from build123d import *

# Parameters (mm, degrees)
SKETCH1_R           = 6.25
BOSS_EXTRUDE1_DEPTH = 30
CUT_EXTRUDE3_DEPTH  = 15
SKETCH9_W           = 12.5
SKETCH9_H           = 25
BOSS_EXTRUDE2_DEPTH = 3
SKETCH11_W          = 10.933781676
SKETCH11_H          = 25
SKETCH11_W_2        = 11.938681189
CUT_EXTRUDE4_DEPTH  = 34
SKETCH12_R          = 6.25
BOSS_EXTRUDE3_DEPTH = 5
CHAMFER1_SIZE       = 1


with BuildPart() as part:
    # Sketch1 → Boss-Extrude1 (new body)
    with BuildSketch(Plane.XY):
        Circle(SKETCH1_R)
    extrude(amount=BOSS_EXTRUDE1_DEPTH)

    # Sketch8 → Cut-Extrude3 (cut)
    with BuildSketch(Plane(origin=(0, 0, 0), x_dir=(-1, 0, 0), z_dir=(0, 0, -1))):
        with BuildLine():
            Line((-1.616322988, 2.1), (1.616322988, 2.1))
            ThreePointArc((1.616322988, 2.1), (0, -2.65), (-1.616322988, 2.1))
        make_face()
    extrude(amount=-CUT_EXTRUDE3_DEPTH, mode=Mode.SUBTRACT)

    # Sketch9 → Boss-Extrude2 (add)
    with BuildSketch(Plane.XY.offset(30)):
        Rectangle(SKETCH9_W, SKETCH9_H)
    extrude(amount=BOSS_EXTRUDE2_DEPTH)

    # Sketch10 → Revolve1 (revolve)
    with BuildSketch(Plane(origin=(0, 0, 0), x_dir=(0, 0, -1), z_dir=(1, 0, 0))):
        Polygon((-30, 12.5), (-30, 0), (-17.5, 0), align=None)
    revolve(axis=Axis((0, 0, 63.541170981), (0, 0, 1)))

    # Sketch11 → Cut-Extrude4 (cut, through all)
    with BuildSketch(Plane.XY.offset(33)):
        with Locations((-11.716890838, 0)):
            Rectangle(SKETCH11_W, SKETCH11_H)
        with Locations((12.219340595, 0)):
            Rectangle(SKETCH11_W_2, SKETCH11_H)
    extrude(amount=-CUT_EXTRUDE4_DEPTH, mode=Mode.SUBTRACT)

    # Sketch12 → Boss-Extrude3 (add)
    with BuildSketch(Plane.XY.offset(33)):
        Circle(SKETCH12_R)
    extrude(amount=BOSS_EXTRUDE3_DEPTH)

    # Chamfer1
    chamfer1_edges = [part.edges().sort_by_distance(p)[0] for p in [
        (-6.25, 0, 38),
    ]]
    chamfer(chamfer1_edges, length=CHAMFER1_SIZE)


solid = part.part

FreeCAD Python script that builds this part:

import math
import FreeCAD as App
import Part
import Sketcher

V = App.Vector
Q = App.Units.Quantity


def edges_at(feature, points):
    """Names of the edges that pass closest to the given points."""
    edges = feature.Shape.Edges
    near = lambda p: min(range(len(edges)), key=lambda i: edges[i].distToShape(Part.Vertex(*p))[0])
    return sorted({f"Edge{near(p) + 1}" for p in points})


def add_polygon(sketch, points):
    """Adds a closed chain of lines whose ends are joined by coincident constraints."""
    first, n = sketch.GeometryCount, len(points)
    for a, b in zip(points, points[1:] + points[:1]):
        sketch.addGeometry(Part.LineSegment(App.Vector(*a, 0), App.Vector(*b, 0)), False)
    for i in range(n):
        sketch.addConstraint(Sketcher.Constraint("Coincident", first + i, 2, first + (i + 1) % n, 1))

doc = App.newDocument("Part")
body = doc.addObject("PartDesign::Body", "Body")

sketch1 = body.newObject("Sketcher::SketchObject", "Sketch")
sketch1.AttachmentSupport = (doc.getObject("XY_Plane"), [""])
sketch1.MapMode = "FlatFace"
sketch1.addGeometry(Part.Circle(V(0, 0, 0), V(0, 0, 1), 6), False)
sketch1.addConstraint(Sketcher.Constraint("Coincident", 0, 3, -1, 1))
sketch1.addConstraint(Sketcher.Constraint("Diameter", 0, Q("12.5 mm")))
pad1 = body.newObject("PartDesign::Pad", "Pad")
pad1.Profile = sketch1
pad1.Length = 30

sketch2 = body.newObject("Sketcher::SketchObject", "Sketch001")
sketch2.AttachmentSupport = (doc.getObject("XY_Plane"), [""])
sketch2.MapMode = "FlatFace"
sketch2.addGeometry(Part.LineSegment(V(-1.6, 2.1, 0), V(1.6, 2.1, 0)), False)
sketch2.addGeometry(Part.ArcOfCircle(Part.Circle(V(0, 0, 0), V(0, 0, 1), 2.6), math.radians(128), math.radians(412)), False)
sketch2.addConstraint(Sketcher.Constraint("Coincident", 0, 1, 1, 1))
sketch2.addConstraint(Sketcher.Constraint("Coincident", 1, 2, 0, 2))
sketch2.addConstraint(Sketcher.Constraint("Horizontal", 0))
sketch2.addConstraint(Sketcher.Constraint("Coincident", 1, 3, -1, 1))
sketch2.addConstraint(Sketcher.Constraint("Radius", 1, Q("2.65 mm")))
sketch2.addConstraint(Sketcher.Constraint("DistanceY", -1, 1, 0, 1, Q("2.1 mm")))
pocket1 = body.newObject("PartDesign::Pocket", "Pocket")
pocket1.Profile = sketch2
pocket1.Length = 15
pocket1.Reversed = True

sketch3 = body.newObject("Sketcher::SketchObject", "Sketch002")
sketch3.AttachmentSupport = (doc.getObject("XY_Plane"), [""])
sketch3.MapMode = "FlatFace"
sketch3.AttachmentOffset = App.Placement(V(0, 0, 30), App.Rotation())
add_polygon(sketch3, [(-6, 12), (-6, -12), (6, -12), (6, 12)])
sketch3.addConstraint(Sketcher.Constraint("Vertical", 0))
sketch3.addConstraint(Sketcher.Constraint("Horizontal", 1))
sketch3.addConstraint(Sketcher.Constraint("Vertical", 2))
sketch3.addConstraint(Sketcher.Constraint("Horizontal", 3))
sketch3.addConstraint(Sketcher.Constraint("Symmetric", 0, 2, 2, 2, -1, 1))
sketch3.addConstraint(Sketcher.Constraint("DistanceY", 0, 2, 0, 1, Q("25 mm")))
sketch3.addConstraint(Sketcher.Constraint("DistanceX", 1, 1, 1, 2, Q("12.5 mm")))
pad2 = body.newObject("PartDesign::Pad", "Pad001")
pad2.Profile = sketch3
pad2.Length = 3

sketch4 = body.newObject("Sketcher::SketchObject", "Sketch003")
sketch4.AttachmentSupport = (doc.getObject("YZ_Plane"), [""])
sketch4.MapMode = "FlatFace"
add_polygon(sketch4, [(12, 30), (0, 30), (0, 18)])
sketch4.addConstraint(Sketcher.Constraint("Horizontal", 0))
sketch4.addConstraint(Sketcher.Constraint("Vertical", 1))
sketch4.addConstraint(Sketcher.Constraint("PointOnObject", 0, 2, -2))
sketch4.addConstraint(Sketcher.Constraint("Equal", 0, 1))
sketch4.addConstraint(Sketcher.Constraint("DistanceX", 0, 2, 0, 1, Q("12.5 mm")))
sketch4.addConstraint(Sketcher.Constraint("DistanceY", -1, 1, 0, 2, Q("30 mm")))
revolution = body.newObject("PartDesign::Revolution", "Revolution")
revolution.Profile = sketch4
revolution.ReferenceAxis = (sketch4, ["V_Axis"])
revolution.Angle = 360

sketch5 = body.newObject("Sketcher::SketchObject", "Sketch004")
sketch5.AttachmentSupport = (doc.getObject("XY_Plane"), [""])
sketch5.MapMode = "FlatFace"
sketch5.AttachmentOffset = App.Placement(V(0, 0, 33), App.Rotation())
add_polygon(sketch5, [(-17, 12), (-17, -12), (-6, -12), (-6, 12)])
add_polygon(sketch5, [(6, 12), (6, -12), (18, -12), (18, 12)])
sketch5.addConstraint(Sketcher.Constraint("Vertical", 0))
sketch5.addConstraint(Sketcher.Constraint("Horizontal", 1))
sketch5.addConstraint(Sketcher.Constraint("Vertical", 2))
sketch5.addConstraint(Sketcher.Constraint("Horizontal", 3))
sketch5.addConstraint(Sketcher.Constraint("Vertical", 4))
sketch5.addConstraint(Sketcher.Constraint("Horizontal", 5))
sketch5.addConstraint(Sketcher.Constraint("Vertical", 6))
sketch5.addConstraint(Sketcher.Constraint("Horizontal", 7))
sketch5.addConstraint(Sketcher.Constraint("Symmetric", 2, 2, 4, 2, -1, 1))
sketch5.addConstraint(Sketcher.Constraint("Horizontal", 1, 2, 4, 2))
sketch5.addConstraint(Sketcher.Constraint("Horizontal", 3, 2, 6, 2))
sketch5.addConstraint(Sketcher.Constraint("DistanceY", 0, 2, 0, 1, Q("25 mm")))
sketch5.addConstraint(Sketcher.Constraint("DistanceX", 1, 2, 4, 2, Q("12.5 mm")))
sketch5.addConstraint(Sketcher.Constraint("DistanceX", 1, 1, 1, 2, Q("10.933782 mm")))
sketch5.addConstraint(Sketcher.Constraint("DistanceX", 5, 1, 5, 2, Q("11.938681 mm")))
pocket2 = body.newObject("PartDesign::Pocket", "Pocket001")
pocket2.Profile = sketch5
pocket2.Type = "ThroughAll"

sketch6 = body.newObject("Sketcher::SketchObject", "Sketch005")
sketch6.AttachmentSupport = (doc.getObject("XY_Plane"), [""])
sketch6.MapMode = "FlatFace"
sketch6.AttachmentOffset = App.Placement(V(0, 0, 33), App.Rotation())
sketch6.addGeometry(Part.Circle(V(0, 0, 0), V(0, 0, 1), 6), False)
sketch6.addConstraint(Sketcher.Constraint("Coincident", 0, 3, -1, 1))
sketch6.addConstraint(Sketcher.Constraint("Diameter", 0, Q("12.5 mm")))
pad3 = body.newObject("PartDesign::Pad", "Pad002")
pad3.Profile = sketch6
pad3.Length = 5
doc.recompute()

chamfer = body.newObject("PartDesign::Chamfer", "Chamfer")
chamfer.Base = (pad3, edges_at(pad3, [(-6.25, 0, 38)]))
chamfer.Size = 1

doc.recompute()
